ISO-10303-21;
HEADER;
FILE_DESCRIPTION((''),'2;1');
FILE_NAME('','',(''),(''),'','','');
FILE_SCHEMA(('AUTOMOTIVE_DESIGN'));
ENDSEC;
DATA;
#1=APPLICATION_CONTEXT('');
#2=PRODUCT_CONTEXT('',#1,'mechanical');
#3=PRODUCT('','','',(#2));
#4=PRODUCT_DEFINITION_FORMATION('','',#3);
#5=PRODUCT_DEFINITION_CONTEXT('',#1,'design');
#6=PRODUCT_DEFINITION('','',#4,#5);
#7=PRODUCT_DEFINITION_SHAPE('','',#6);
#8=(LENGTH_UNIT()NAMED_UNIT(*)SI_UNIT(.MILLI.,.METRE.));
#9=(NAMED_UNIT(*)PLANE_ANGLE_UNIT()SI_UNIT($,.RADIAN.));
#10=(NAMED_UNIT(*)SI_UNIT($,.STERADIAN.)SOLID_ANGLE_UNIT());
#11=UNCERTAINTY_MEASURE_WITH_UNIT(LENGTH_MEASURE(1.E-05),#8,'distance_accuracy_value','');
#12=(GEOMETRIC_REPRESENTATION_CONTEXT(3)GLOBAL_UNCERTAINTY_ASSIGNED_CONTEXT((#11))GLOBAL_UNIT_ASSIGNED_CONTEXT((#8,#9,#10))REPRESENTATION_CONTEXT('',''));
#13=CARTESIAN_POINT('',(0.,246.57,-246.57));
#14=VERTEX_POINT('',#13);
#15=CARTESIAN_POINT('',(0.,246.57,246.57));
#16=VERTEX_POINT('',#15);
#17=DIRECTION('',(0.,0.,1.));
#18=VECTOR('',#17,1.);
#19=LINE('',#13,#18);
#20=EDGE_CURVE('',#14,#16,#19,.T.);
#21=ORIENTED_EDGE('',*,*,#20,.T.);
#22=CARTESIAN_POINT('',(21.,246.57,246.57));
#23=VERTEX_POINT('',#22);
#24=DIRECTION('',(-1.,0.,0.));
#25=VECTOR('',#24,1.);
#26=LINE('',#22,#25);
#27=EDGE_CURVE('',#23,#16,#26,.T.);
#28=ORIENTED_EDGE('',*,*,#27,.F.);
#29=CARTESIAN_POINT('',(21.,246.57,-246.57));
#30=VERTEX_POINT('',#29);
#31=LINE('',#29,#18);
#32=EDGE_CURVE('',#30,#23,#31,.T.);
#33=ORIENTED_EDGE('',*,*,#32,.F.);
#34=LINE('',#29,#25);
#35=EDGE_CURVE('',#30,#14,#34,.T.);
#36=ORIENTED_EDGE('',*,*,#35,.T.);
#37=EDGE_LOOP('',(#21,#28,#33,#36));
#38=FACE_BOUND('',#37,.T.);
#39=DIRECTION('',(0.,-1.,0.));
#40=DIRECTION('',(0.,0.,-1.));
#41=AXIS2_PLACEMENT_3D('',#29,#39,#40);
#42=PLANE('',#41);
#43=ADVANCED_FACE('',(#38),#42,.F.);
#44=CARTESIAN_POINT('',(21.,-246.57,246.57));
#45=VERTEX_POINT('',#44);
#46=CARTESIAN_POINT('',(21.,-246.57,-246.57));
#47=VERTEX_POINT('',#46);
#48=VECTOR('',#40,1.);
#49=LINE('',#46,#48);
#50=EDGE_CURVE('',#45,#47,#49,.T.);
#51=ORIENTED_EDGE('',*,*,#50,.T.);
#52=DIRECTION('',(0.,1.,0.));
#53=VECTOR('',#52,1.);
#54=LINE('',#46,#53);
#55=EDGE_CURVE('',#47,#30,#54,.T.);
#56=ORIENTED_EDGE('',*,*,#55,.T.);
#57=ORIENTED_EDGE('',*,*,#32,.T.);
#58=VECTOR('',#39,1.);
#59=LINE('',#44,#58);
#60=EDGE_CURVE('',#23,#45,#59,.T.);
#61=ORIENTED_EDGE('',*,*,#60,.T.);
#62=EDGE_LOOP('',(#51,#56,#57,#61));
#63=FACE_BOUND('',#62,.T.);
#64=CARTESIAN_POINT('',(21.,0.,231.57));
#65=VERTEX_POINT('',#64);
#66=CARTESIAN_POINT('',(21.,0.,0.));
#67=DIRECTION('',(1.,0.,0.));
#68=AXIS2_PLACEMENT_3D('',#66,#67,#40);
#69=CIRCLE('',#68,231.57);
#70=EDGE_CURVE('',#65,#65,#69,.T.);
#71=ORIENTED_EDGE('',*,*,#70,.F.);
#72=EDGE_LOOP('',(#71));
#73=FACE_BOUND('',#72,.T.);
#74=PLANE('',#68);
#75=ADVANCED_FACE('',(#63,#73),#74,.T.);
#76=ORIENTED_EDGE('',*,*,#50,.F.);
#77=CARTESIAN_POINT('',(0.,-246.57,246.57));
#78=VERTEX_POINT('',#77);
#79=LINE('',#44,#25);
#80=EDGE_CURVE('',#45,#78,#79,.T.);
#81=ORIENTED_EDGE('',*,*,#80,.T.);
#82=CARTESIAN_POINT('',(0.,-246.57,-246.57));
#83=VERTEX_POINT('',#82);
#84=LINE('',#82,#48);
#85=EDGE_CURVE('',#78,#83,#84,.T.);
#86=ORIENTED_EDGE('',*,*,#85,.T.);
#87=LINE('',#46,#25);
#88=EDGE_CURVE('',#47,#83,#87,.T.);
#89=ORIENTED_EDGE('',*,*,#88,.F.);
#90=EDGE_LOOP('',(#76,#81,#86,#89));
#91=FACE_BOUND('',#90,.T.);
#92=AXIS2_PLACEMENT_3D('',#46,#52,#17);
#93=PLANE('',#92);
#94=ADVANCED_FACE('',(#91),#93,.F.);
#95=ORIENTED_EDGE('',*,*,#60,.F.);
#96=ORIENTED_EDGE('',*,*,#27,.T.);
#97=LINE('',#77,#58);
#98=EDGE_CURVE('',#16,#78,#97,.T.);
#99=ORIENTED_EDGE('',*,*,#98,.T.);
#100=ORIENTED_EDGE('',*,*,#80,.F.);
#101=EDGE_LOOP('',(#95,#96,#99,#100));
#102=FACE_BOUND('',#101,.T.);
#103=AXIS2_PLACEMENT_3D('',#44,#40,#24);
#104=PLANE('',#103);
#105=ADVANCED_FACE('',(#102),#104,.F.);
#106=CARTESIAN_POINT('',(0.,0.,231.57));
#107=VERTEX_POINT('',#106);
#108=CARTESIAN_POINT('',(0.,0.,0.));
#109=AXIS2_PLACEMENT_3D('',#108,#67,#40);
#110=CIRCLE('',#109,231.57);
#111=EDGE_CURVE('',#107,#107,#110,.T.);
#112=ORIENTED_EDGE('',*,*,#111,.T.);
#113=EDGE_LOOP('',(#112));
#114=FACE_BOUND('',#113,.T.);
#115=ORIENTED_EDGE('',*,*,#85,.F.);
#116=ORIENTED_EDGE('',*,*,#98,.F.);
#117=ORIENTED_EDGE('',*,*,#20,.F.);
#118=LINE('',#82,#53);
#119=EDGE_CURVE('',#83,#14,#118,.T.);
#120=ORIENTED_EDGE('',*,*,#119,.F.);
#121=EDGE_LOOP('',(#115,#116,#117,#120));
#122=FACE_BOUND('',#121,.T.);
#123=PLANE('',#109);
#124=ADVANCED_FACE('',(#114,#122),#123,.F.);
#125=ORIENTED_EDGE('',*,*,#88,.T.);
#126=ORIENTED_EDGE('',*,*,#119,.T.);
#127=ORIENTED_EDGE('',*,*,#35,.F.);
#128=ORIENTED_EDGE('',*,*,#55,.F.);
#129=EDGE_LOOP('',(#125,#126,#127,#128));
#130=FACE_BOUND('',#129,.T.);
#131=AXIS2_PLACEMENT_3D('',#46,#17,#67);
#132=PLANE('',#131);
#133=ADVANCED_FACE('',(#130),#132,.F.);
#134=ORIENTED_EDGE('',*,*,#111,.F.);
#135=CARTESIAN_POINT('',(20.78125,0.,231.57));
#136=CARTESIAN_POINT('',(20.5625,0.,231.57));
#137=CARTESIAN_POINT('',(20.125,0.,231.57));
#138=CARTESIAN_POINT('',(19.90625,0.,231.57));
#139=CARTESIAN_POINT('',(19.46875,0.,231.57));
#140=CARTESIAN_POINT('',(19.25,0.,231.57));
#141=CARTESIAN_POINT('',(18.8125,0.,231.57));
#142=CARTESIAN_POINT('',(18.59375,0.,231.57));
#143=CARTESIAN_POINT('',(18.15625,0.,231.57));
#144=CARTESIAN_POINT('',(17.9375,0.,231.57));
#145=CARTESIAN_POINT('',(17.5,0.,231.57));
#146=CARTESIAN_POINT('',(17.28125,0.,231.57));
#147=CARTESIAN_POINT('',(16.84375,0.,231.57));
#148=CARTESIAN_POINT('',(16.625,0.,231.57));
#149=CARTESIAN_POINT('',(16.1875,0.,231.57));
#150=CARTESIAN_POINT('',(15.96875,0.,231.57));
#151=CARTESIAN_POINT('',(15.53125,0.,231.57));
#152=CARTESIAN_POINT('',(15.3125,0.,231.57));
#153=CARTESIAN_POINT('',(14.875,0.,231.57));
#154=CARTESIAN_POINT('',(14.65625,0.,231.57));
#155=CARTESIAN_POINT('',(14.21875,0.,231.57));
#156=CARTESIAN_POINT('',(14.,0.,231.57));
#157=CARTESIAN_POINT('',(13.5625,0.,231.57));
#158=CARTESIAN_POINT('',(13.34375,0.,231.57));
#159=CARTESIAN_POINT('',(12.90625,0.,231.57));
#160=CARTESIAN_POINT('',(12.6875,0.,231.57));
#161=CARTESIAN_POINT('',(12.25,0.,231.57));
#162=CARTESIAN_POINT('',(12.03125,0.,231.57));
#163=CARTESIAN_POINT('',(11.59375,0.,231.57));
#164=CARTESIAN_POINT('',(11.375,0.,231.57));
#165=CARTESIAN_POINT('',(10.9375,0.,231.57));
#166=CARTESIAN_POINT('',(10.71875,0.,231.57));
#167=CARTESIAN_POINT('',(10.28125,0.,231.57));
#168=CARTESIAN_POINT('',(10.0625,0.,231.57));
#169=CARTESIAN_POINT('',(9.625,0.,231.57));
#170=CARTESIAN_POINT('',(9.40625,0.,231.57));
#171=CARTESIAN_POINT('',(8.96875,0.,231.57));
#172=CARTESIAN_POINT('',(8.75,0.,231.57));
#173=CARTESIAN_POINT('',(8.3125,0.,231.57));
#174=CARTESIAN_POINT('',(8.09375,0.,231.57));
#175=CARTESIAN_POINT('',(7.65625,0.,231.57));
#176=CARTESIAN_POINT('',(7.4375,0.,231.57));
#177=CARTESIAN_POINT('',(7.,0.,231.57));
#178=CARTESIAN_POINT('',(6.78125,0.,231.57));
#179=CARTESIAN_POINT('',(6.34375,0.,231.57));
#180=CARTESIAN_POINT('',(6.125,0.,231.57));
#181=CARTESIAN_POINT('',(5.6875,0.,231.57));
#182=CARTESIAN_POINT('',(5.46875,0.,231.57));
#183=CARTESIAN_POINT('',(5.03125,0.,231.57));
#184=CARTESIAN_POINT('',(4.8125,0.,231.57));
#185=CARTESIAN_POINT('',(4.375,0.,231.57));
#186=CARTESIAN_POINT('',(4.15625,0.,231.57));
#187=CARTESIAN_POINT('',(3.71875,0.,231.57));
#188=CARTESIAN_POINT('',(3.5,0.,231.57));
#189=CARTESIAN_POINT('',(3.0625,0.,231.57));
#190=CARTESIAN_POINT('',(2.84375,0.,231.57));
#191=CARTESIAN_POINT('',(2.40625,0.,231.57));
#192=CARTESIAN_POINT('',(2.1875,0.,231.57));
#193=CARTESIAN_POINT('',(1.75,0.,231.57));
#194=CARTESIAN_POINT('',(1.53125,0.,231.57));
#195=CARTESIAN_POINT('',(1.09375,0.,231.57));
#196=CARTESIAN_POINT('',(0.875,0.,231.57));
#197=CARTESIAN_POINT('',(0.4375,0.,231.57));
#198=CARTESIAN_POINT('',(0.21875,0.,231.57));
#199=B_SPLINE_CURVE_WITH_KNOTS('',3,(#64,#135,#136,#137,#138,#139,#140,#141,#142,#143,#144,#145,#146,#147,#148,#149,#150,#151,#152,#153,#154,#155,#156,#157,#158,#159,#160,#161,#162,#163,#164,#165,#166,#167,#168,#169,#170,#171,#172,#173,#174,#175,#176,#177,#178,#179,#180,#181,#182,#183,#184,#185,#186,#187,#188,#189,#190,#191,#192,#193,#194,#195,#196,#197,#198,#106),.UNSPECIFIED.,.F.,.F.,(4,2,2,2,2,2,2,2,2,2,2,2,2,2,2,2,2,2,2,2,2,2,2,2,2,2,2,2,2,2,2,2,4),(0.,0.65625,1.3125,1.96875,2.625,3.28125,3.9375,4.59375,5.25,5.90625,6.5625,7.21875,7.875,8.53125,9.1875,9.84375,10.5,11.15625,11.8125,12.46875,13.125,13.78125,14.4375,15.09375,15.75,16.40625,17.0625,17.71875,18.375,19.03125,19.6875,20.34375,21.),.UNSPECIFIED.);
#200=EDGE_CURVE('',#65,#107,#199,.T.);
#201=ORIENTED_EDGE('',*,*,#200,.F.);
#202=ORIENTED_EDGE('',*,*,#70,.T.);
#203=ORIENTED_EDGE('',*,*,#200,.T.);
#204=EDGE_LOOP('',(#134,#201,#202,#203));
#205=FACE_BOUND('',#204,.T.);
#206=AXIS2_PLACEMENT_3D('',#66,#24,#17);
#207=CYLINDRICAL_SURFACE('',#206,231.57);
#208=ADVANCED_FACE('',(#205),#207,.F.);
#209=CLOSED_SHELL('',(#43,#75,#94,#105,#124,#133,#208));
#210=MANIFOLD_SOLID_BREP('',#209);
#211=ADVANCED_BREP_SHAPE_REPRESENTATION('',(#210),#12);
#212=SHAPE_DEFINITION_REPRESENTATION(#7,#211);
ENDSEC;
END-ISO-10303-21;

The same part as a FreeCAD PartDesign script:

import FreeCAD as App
import Part
import Sketcher

V = App.Vector
Q = App.Units.Quantity


def add_polygon(sketch, points):
    """Adds a closed chain of lines whose ends are joined by coincident constraints."""
    first, n = sketch.GeometryCount, len(points)
    for a, b in zip(points, points[1:] + points[:1]):
        sketch.addGeometry(Part.LineSegment(App.Vector(*a, 0), App.Vector(*b, 0)), False)
    for i in range(n):
        sketch.addConstraint(Sketcher.Constraint("Coincident", first + i, 2, first + (i + 1) % n, 1))

doc = App.newDocument("Part")
params = doc.addObject("Spreadsheet::Sheet", "Params")
for row, (alias, value) in enumerate([
    ("sketch1_diameter", "463.14 mm"),
    ("sketch1_width", "493.14 mm"),
    ("pad1_length", "21 mm"),
], start=1):
    params.set(f"A{row}", alias)
    params.set(f"B{row}", "=" + value)
    params.setAlias(f"B{row}", alias)

body = doc.addObject("PartDesign::Body", "Body")

# Sketch on YZ plane
sketch1 = body.newObject("Sketcher::SketchObject", "Sketch")
sketch1.AttachmentSupport = (doc.getObject("YZ_Plane"), [""])
sketch1.MapMode = "FlatFace"
add_polygon(sketch1, [(247, 247), (-247, 247), (-247, -247), (247, -247)])  # lines 0-3
sketch1.addGeometry(Part.Circle(V(0, 0, 0), V(0, 0, 1), 232), False)  # 4
sketch1.addConstraint(Sketcher.Constraint("Horizontal", 0))
sketch1.addConstraint(Sketcher.Constraint("Vertical", 1))
sketch1.addConstraint(Sketcher.Constraint("Horizontal", 2))
sketch1.addConstraint(Sketcher.Constraint("Vertical", 3))
sketch1.addConstraint(Sketcher.Constraint("Coincident", 4, 3, -1, 1))
sketch1.addConstraint(Sketcher.Constraint("Symmetric", 0, 2, 2, 2, -1, 1))
sketch1.addConstraint(Sketcher.Constraint("Equal", 2, 1))
sketch1.addConstraint(Sketcher.Constraint("Diameter", 4, Q("463.14 mm")))
sketch1.addConstraint(Sketcher.Constraint("DistanceX", 0, 2, 0, 1, Q("493.14 mm")))
sketch1.setExpression("Constraints[11]", "Params.sketch1_diameter")
sketch1.setExpression("Constraints[12]", "Params.sketch1_width")
pad1 = body.newObject("PartDesign::Pad", "Pad")
pad1.Profile = sketch1
pad1.setExpression("Length", "Params.pad1_length")

doc.recompute()
